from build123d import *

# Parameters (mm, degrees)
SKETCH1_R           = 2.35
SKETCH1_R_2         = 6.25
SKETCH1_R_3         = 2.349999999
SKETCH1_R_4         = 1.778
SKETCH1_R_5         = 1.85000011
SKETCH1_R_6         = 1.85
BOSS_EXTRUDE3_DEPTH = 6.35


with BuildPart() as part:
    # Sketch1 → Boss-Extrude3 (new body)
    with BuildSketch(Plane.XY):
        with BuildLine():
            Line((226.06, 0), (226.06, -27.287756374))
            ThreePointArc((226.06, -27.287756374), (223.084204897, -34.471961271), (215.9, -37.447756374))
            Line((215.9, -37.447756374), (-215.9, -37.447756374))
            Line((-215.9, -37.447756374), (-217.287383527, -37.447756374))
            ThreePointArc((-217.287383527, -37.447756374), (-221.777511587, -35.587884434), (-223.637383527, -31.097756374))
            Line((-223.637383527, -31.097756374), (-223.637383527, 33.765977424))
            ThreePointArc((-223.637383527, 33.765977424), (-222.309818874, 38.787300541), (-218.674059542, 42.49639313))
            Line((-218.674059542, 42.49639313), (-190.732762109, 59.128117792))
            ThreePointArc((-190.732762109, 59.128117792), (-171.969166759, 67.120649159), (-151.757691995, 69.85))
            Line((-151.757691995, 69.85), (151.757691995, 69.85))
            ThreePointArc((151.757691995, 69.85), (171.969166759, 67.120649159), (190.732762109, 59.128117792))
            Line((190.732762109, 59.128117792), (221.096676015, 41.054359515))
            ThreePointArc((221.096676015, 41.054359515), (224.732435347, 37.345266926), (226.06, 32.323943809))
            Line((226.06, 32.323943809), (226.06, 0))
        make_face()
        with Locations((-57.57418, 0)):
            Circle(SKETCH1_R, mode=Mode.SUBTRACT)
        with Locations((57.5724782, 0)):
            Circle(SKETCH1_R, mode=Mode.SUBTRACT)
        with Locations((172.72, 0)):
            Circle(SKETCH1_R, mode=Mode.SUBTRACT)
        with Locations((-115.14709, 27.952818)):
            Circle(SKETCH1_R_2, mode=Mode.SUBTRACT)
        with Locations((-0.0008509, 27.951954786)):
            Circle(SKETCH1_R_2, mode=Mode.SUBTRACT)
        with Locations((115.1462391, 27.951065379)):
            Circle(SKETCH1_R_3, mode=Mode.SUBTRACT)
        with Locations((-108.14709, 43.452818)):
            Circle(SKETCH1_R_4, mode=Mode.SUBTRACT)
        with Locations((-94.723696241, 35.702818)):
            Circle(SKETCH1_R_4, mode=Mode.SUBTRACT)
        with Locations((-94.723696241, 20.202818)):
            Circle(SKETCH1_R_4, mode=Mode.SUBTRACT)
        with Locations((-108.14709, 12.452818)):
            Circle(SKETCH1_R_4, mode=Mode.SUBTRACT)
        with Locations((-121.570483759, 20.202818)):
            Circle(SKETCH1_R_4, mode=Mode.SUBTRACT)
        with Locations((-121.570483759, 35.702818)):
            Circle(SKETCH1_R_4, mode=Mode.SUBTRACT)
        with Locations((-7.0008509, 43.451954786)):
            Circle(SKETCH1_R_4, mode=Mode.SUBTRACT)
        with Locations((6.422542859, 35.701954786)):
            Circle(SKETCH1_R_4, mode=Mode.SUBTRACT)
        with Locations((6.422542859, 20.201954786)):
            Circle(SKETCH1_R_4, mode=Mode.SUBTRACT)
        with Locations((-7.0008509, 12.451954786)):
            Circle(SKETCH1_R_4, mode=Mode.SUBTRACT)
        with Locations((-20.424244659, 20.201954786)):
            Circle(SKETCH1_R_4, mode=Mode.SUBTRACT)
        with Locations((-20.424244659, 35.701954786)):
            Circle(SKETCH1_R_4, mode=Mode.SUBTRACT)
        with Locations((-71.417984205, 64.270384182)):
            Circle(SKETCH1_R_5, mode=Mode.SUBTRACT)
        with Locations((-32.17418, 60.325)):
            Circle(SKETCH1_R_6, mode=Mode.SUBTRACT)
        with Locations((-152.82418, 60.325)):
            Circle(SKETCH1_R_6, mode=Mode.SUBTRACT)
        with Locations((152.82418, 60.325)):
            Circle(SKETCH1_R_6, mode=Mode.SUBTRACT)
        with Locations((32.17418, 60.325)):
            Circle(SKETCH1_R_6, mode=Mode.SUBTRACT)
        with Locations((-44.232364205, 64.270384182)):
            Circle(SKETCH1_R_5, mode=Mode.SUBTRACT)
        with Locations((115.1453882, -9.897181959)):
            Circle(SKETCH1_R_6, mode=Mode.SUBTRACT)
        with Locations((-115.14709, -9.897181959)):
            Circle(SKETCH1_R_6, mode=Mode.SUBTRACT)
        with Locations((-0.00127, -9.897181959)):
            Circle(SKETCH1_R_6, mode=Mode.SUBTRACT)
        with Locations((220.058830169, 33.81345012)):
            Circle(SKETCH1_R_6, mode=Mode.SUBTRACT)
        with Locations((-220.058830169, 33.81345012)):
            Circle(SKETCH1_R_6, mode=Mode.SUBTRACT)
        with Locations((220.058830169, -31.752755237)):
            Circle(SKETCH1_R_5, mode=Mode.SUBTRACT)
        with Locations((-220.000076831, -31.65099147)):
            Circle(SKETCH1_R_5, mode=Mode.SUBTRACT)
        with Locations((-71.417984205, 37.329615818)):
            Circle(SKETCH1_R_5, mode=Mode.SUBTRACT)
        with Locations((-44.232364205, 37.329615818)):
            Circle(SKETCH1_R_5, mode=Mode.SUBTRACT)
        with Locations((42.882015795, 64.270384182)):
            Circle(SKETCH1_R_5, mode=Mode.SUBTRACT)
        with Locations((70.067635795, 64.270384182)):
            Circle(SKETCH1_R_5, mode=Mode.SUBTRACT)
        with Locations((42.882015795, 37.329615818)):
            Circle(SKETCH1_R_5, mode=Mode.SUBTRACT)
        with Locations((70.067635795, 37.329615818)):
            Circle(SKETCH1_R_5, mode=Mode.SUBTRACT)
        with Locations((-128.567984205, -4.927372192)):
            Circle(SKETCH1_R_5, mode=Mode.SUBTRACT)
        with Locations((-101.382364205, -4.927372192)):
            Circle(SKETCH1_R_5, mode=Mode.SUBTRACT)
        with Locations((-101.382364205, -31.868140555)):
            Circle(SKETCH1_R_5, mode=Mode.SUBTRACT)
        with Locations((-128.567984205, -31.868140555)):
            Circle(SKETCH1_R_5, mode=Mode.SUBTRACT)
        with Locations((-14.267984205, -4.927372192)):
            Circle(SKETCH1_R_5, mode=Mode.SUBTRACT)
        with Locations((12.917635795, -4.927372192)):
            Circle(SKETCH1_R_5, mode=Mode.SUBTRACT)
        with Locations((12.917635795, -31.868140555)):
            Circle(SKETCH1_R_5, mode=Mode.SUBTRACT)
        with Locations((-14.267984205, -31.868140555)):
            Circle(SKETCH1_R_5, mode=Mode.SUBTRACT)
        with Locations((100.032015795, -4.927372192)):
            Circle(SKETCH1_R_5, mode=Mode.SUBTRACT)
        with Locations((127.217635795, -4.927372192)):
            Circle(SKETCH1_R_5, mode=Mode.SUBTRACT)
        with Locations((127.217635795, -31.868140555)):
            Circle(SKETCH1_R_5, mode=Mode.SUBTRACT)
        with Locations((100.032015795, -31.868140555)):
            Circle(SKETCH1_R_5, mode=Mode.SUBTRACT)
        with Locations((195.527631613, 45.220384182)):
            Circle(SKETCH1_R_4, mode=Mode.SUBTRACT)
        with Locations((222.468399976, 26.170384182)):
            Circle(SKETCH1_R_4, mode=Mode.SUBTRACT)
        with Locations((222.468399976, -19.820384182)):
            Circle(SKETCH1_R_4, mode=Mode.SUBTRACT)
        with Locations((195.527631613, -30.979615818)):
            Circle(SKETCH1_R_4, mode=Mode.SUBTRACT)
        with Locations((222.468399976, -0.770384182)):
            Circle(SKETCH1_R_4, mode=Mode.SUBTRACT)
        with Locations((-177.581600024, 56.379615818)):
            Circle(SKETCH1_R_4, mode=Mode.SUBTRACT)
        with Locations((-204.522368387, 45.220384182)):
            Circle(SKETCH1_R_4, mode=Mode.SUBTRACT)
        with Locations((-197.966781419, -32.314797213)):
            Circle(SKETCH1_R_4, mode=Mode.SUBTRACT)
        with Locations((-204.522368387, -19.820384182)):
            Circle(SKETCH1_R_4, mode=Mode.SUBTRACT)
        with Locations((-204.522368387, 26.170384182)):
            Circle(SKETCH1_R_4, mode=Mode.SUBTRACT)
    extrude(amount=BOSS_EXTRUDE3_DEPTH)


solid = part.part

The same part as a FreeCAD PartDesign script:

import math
import FreeCAD as App
import Part
import Sketcher
from FreeCAD import Vector
Q = App.Units.Quantity

doc = App.newDocument("Part")
body = doc.addObject("PartDesign::Body", "Body")

sketch1 = body.newObject("Sketcher::SketchObject", "Sketch")
sketch1.AttachmentSupport = (doc.getObject("XY_Plane"), [""])
sketch1.MapMode = "FlatFace"
sketch1.addGeometry([
    Part.ArcOfCircle(Part.Circle(Vector(215.9, -27.287756, 0), Vector(0, 0, 1), 10.16), math.radians(-90), math.radians(0)),
    Part.LineSegment(Vector(226.06, -27.287756, 0), Vector(226.06, 32.323944, 0)),
    Part.ArcOfCircle(Part.Circle(Vector(215.9, 32.323944, 0), Vector(0, 0, 1), 10.16), math.radians(0), math.radians(59.23728)),
    Part.LineSegment(Vector(221.096676, 41.05436, 0), Vector(190.732762, 59.128118, 0)),
    Part.ArcOfCircle(Part.Circle(Vector(151.757692, -6.35, 0), Vector(0, 0, 1), 76.2), math.radians(59.23728), math.radians(90)),
    Part.LineSegment(Vector(151.757692, 69.85, 0), Vector(-151.757692, 69.85, 0)),
    Part.ArcOfCircle(Part.Circle(Vector(-151.757692, -6.35, 0), Vector(0, 0, 1), 76.2), math.radians(90), math.radians(120.76272)),
    Part.LineSegment(Vector(-190.732762, 59.128118, 0), Vector(-218.67406, 42.496393, 0)),
    Part.ArcOfCircle(Part.Circle(Vector(-213.477384, 33.765977, 0), Vector(0, 0, 1), 10.16), math.radians(120.76272), math.radians(180)),
    Part.LineSegment(Vector(-223.637384, 33.765977, 0), Vector(-223.637384, -31.097756, 0)),
    Part.ArcOfCircle(Part.Circle(Vector(-217.287384, -31.097756, 0), Vector(0, 0, 1), 6.35), math.radians(-180), math.radians(-90)),
    Part.LineSegment(Vector(-217.287384, -37.447756, 0), Vector(215.9, -37.447756, 0)),
    Part.Circle(Vector(220.05883, -31.752755, 0), Vector(0, 0, 1), 1.85),
    Part.Circle(Vector(195.527632, -30.979616, 0), Vector(0, 0, 1), 1.778),
    Part.Circle(Vector(127.217636, -31.868141, 0), Vector(0, 0, 1), 1.85),
    Part.Circle(Vector(222.4684, -19.820384, 0), Vector(0, 0, 1), 1.778),
    Part.Circle(Vector(115.145388, -9.897182, 0), Vector(0, 0, 1), 1.85),
    Part.Circle(Vector(100.032016, -31.868141, 0), Vector(0, 0, 1), 1.85),
    Part.Circle(Vector(12.917636, -31.868141, 0), Vector(0, 0, 1), 1.85),
    Part.Circle(Vector(222.4684, -0.770384, 0), Vector(0, 0, 1), 1.778),
    Part.Circle(Vector(172.72, 0, 0), Vector(0, 0, 1), 2.35),
    Part.Circle(Vector(127.217636, -4.927372, 0), Vector(0, 0, 1), 1.85),
    Part.Circle(Vector(100.032016, -4.927372, 0), Vector(0, 0, 1), 1.85),
    Part.Circle(Vector(57.572478, 0, 0), Vector(0, 0, 1), 2.35),
    Part.Circle(Vector(12.917636, -4.927372, 0), Vector(0, 0, 1), 1.85),
    Part.Circle(Vector(-14.267984, -31.868141, 0), Vector(0, 0, 1), 1.85),
    Part.Circle(Vector(-101.382364, -31.868141, 0), Vector(0, 0, 1), 1.85),
    Part.Circle(Vector(-0.00127, -9.897182, 0), Vector(0, 0, 1), 1.85),
    Part.Circle(Vector(-128.567984, -31.868141, 0), Vector(0, 0, 1), 1.85),
    Part.Circle(Vector(-197.966781, -32.314797, 0), Vector(0, 0, 1), 1.778),
    Part.Circle(Vector(-220.000077, -31.650991, 0), Vector(0, 0, 1), 1.85),
    Part.Circle(Vector(-115.14709, -9.897182, 0), Vector(0, 0, 1), 1.85),
    Part.Circle(Vector(-204.522368, -19.820384, 0), Vector(0, 0, 1), 1.778),
    Part.Circle(Vector(-14.267984, -4.927372, 0), Vector(0, 0, 1), 1.85),
    Part.Circle(Vector(-101.382364, -4.927372, 0), Vector(0, 0, 1), 1.85),
    Part.Circle(Vector(-57.57418, 0, 0), Vector(0, 0, 1), 2.35),
    Part.Circle(Vector(-7.000851, 12.451955, 0), Vector(0, 0, 1), 1.778),
    Part.Circle(Vector(-108.14709, 12.452818, 0), Vector(0, 0, 1), 1.778),
    Part.Circle(Vector(-128.567984, -4.927372, 0), Vector(0, 0, 1), 1.85),
    Part.Circle(Vector(222.4684, 26.170384, 0), Vector(0, 0, 1), 1.778),
    Part.Circle(Vector(115.146239, 27.951065, 0), Vector(0, 0, 1), 2.35),
    Part.Circle(Vector(220.05883, 33.81345, 0), Vector(0, 0, 1), 1.85),
    Part.Circle(Vector(6.422543, 20.201955, 0), Vector(0, 0, 1), 1.778),
    Part.Circle(Vector(70.067636, 37.329616, 0), Vector(0, 0, 1), 1.85),
    Part.Circle(Vector(42.882016, 37.329616, 0), Vector(0, 0, 1), 1.85),
    Part.Circle(Vector(6.422543, 35.701955, 0), Vector(0, 0, 1), 1.778),
    Part.Circle(Vector(195.527632, 45.220384, 0), Vector(0, 0, 1), 1.778),
    Part.Circle(Vector(152.82418, 60.325, 0), Vector(0, 0, 1), 1.85),
    Part.Circle(Vector(70.067636, 64.270384, 0), Vector(0, 0, 1), 1.85),
    Part.Circle(Vector(32.17418, 60.325, 0), Vector(0, 0, 1), 1.85),
    Part.Circle(Vector(42.882016, 64.270384, 0), Vector(0, 0, 1), 1.85),
    Part.Circle(Vector(-20.424245, 20.201955, 0), Vector(0, 0, 1), 1.778),
    Part.Circle(Vector(-0.000851, 27.951955, 0), Vector(0, 0, 1), 6.25),
    Part.Circle(Vector(-94.723696, 20.202818, 0), Vector(0, 0, 1), 1.778),
    Part.Circle(Vector(-20.424245, 35.701955, 0), Vector(0, 0, 1), 1.778),
    Part.Circle(Vector(-44.232364, 37.329616, 0), Vector(0, 0, 1), 1.85),
    Part.Circle(Vector(-71.417984, 37.329616, 0), Vector(0, 0, 1), 1.85),
    Part.Circle(Vector(-94.723696, 35.702818, 0), Vector(0, 0, 1), 1.778),
    Part.Circle(Vector(-121.570484, 20.202818, 0), Vector(0, 0, 1), 1.778),
    Part.Circle(Vector(-115.14709, 27.952818, 0), Vector(0, 0, 1), 6.25),
    Part.Circle(Vector(-204.522368, 26.170384, 0), Vector(0, 0, 1), 1.778),
    Part.Circle(Vector(-121.570484, 35.702818, 0), Vector(0, 0, 1), 1.778),
    Part.Circle(Vector(-220.05883, 33.81345, 0), Vector(0, 0, 1), 1.85),
    Part.Circle(Vector(-7.000851, 43.451955, 0), Vector(0, 0, 1), 1.778),
    Part.Circle(Vector(-108.14709, 43.452818, 0), Vector(0, 0, 1), 1.778),
    Part.Circle(Vector(-32.17418, 60.325, 0), Vector(0, 0, 1), 1.85),
    Part.Circle(Vector(-44.232364, 64.270384, 0), Vector(0, 0, 1), 1.85),
    Part.Circle(Vector(-71.417984, 64.270384, 0), Vector(0, 0, 1), 1.85),
    Part.Circle(Vector(-204.522368, 45.220384, 0), Vector(0, 0, 1), 1.778),
    Part.Circle(Vector(-152.82418, 60.325, 0), Vector(0, 0, 1), 1.85),
    Part.Circle(Vector(-177.5816, 56.379616, 0), Vector(0, 0, 1), 1.778),
], False)
sketch1.addConstraint([
    Sketcher.Constraint("Tangent", 0, 2, 1, 1),
    Sketcher.Constraint("Tangent", 1, 2, 2, 1),
    Sketcher.Constraint("Tangent", 2, 2, 3, 1),
    Sketcher.Constraint("Tangent", 3, 2, 4, 1),
    Sketcher.Constraint("Tangent", 4, 2, 5, 1),
    Sketcher.Constraint("Tangent", 5, 2, 6, 1),
    Sketcher.Constraint("Tangent", 6, 2, 7, 1),
    Sketcher.Constraint("Tangent", 7, 2, 8, 1),
    Sketcher.Constraint("Tangent", 8, 2, 9, 1),
    Sketcher.Constraint("Tangent", 9, 2, 10, 1),
    Sketcher.Constraint("Tangent", 10, 2, 11, 1),
    Sketcher.Constraint("Tangent", 11, 2, 0, 1),
    Sketcher.Constraint("Vertical", 1),
    Sketcher.Constraint("Horizontal", 5),
    Sketcher.Constraint("Vertical", 9),
    Sketcher.Constraint("Horizontal", 11),
    Sketcher.Constraint("Equal", 0, 2),
    Sketcher.Constraint("Equal", 4, 6),
    Sketcher.Constraint("Equal", 2, 8),
    Sketcher.Constraint("Equal", 12, 14),
    Sketcher.Constraint("Equal", 13, 15),
    Sketcher.Constraint("Equal", 14, 16),
    Sketcher.Constraint("Equal", 16, 17),
    Sketcher.Constraint("Equal", 17, 18),
    Sketcher.Constraint("Equal", 15, 19),
    Sketcher.Constraint("Equal", 18, 21),
    Sketcher.Constraint("Equal", 21, 22),
    Sketcher.Constraint("Equal", 20, 23),
    Sketcher.Constraint("Equal", 22, 24),
    Sketcher.Constraint("Equal", 24, 25),
    Sketcher.Constraint("Equal", 25, 26),
    Sketcher.Constraint("Equal", 26, 27),
    Sketcher.Constraint("Equal", 27, 28),
    Sketcher.Constraint("Equal", 19, 29),
    Sketcher.Constraint("Equal", 28, 30),
    Sketcher.Constraint("Equal", 30, 31),
    Sketcher.Constraint("Equal", 29, 32),
    Sketcher.Constraint("Equal", 31, 33),
    Sketcher.Constraint("Equal", 33, 34),
    Sketcher.Constraint("Equal", 23, 35),
    Sketcher.Constraint("Equal", 32, 36),
    Sketcher.Constraint("Equal", 36, 37),
    Sketcher.Constraint("Equal", 34, 38),
    Sketcher.Constraint("Equal", 37, 39),
    Sketcher.Constraint("Equal", 35, 40),
    Sketcher.Constraint("Equal", 38, 41),
    Sketcher.Constraint("Equal", 39, 42),
    Sketcher.Constraint("Equal", 41, 43),
    Sketcher.Constraint("Equal", 43, 44),
    Sketcher.Constraint("Equal", 42, 45),
    Sketcher.Constraint("Equal", 45, 46),
    Sketcher.Constraint("Equal", 44, 47),
    Sketcher.Constraint("Equal", 47, 48),
    Sketcher.Constraint("Equal", 48, 49),
    Sketcher.Constraint("Equal", 49, 50),
    Sketcher.Constraint("Equal", 46, 51),
    Sketcher.Constraint("Equal", 51, 53),
    Sketcher.Constraint("Equal", 53, 54),
    Sketcher.Constraint("Equal", 50, 55),
    Sketcher.Constraint("Equal", 55, 56),
    Sketcher.Constraint("Equal", 54, 57),
    Sketcher.Constraint("Equal", 57, 58),
    Sketcher.Constraint("Equal", 52, 59),
    Sketcher.Constraint("Equal", 58, 60),
    Sketcher.Constraint("Equal", 60, 61),
    Sketcher.Constraint("Equal", 56, 62),
    Sketcher.Constraint("Equal", 61, 63),
    Sketcher.Constraint("Equal", 63, 64),
    Sketcher.Constraint("Equal", 62, 65),
    Sketcher.Constraint("Equal", 65, 66),
    Sketcher.Constraint("Equal", 66, 67),
    Sketcher.Constraint("Equal", 64, 68),
    Sketcher.Constraint("Equal", 67, 69),
    Sketcher.Constraint("Equal", 68, 70),
    Sketcher.Constraint("Symmetric", 41, 3, 62, 3, -2),
    Sketcher.Constraint("Symmetric", 49, 3, 65, 3, -2),
    Sketcher.Constraint("Symmetric", 47, 3, 69, 3, -2),
    Sketcher.Constraint("Symmetric", 3, 2, 6, 2, -2),
    Sketcher.Constraint("PointOnObject", 20, 3, -1),
    Sketcher.Constraint("PointOnObject", 23, 3, -1),
    Sketcher.Constraint("PointOnObject", 35, 3, -1),
    Sketcher.Constraint("Horizontal", 14, 3, 17, 3),
    Sketcher.Constraint("Horizontal", 17, 3, 18, 3),
    Sketcher.Constraint("Horizontal", 21, 3, 22, 3),
    Sketcher.Constraint("Horizontal", 22, 3, 24, 3),
    Sketcher.Constraint("Horizontal", 18, 3, 25, 3),
    Sketcher.Constraint("Horizontal", 25, 3, 26, 3),
    Sketcher.Constraint("Horizontal", 16, 3, 27, 3),
    Sketcher.Constraint("Horizontal", 26, 3, 28, 3),
    Sketcher.Constraint("Horizontal", 27, 3, 31, 3),
    Sketcher.Constraint("Horizontal", 15, 3, 32, 3),
    Sketcher.Constraint("Horizontal", 24, 3, 33, 3),
    Sketcher.Constraint("Horizontal", 33, 3, 34, 3),
    Sketcher.Constraint("Horizontal", 34, 3, 38, 3),
    Sketcher.Constraint("Horizontal", 43, 3, 44, 3),
    Sketcher.Constraint("Horizontal", 47, 3, 49, 3),
    Sketcher.Constraint("Horizontal", 48, 3, 50, 3),
    Sketcher.Constraint("Horizontal", 42, 3, 51, 3),
    Sketcher.Constraint("Horizontal", 45, 3, 54, 3),
    Sketcher.Constraint("Horizontal", 44, 3, 55, 3),
    Sketcher.Constraint("Horizontal", 55, 3, 56, 3),
    Sketcher.Constraint("Horizontal", 53, 3, 58, 3),
    Sketcher.Constraint("Horizontal", 39, 3, 60, 3),
    Sketcher.Constraint("Horizontal", 57, 3, 61, 3),
    Sketcher.Constraint("Horizontal", 50, 3, 66, 3),
    Sketcher.Constraint("Horizontal", 66, 3, 67, 3),
    Sketcher.Constraint("Horizontal", 46, 3, 68, 3),
    Sketcher.Constraint("Vertical", 15, 3, 19, 3),
    Sketcher.Constraint("Vertical", 14, 3, 21, 3),
    Sketcher.Constraint("Vertical", 17, 3, 22, 3),
    Sketcher.Constraint("Vertical", 18, 3, 24, 3),
    Sketcher.Constraint("Vertical", 25, 3, 33, 3),
    Sketcher.Constraint("Vertical", 26, 3, 34, 3),
    Sketcher.Constraint("Vertical", 28, 3, 38, 3),
    Sketcher.Constraint("Vertical", 19, 3, 39, 3),
    Sketcher.Constraint("Vertical", 12, 3, 41, 3),
    Sketcher.Constraint("Vertical", 42, 3, 45, 3),
    Sketcher.Constraint("Vertical", 13, 3, 46, 3),
    Sketcher.Constraint("Vertical", 43, 3, 48, 3),
    Sketcher.Constraint("Vertical", 44, 3, 50, 3),
    Sketcher.Constraint("Vertical", 51, 3, 54, 3),
    Sketcher.Constraint("Vertical", 53, 3, 57, 3),
    Sketcher.Constraint("Vertical", 31, 3, 59, 3),
    Sketcher.Constraint("Vertical", 32, 3, 60, 3),
    Sketcher.Constraint("Vertical", 58, 3, 61, 3),
    Sketcher.Constraint("Vertical", 36, 3, 63, 3),
    Sketcher.Constraint("Vertical", 37, 3, 64, 3),
    Sketcher.Constraint("Vertical", 55, 3, 66, 3),
    Sketcher.Constraint("Vertical", 56, 3, 67, 3),
    Sketcher.Constraint("Vertical", 60, 3, 68, 3),
    Sketcher.Constraint("Radius", 4, Q("3 in")),
    Sketcher.Constraint("Radius", 0, Q("0.4 in")),
    Sketcher.Constraint("Diameter", 13, Q("0.14 in")),
    Sketcher.Constraint("Radius", 10, Q("0.25 in")),
    Sketcher.Constraint("DistanceX", -1, 1, 0, 3, Q("8.5 in")),
    Sketcher.Constraint("DistanceX", -1, 1, 20, 3, Q("6.8 in")),
    Sketcher.Constraint("Diameter", 12, Q("3.7 mm")),
    Sketcher.Constraint("Diameter", 20, Q("4.7 mm")),
    Sketcher.Constraint("Diameter", 52, Q("12.5 mm")),
    Sketcher.Constraint("DistanceY", 4, 3, -1, 1, Q("0.25 in")),
    Sketcher.Constraint("DistanceY", -1, 1, 47, 3, Q("2.375 in")),
    Sketcher.Constraint("DistanceY", 1, 1, 1, 2, Q("59.6117 mm")),
    Sketcher.Constraint("DistanceX", 35, 3, -1, 1, Q("2.2667 in")),
    Sketcher.Constraint("DistanceX", -1, 1, 47, 3, Q("6.0167 in")),
    Sketcher.Constraint("DistanceX", -1, 1, 49, 3, Q("1.2667 in")),
    Sketcher.Constraint("DistanceX", -1, 1, 15, 3, Q("222.4684 mm")),
    Sketcher.Constraint("DistanceX", 70, 3, -1, 1, Q("177.5816 mm")),
    Sketcher.Constraint("Distance", 3, Q("35.335931 mm")),
    Sketcher.Constraint("DistanceX", 5, 2, 5, 1, Q("303.515384 mm")),
    Sketcher.Constraint("DistanceX", 11, 1, 11, 2, Q("433.187384 mm")),
    Sketcher.Constraint("DistanceX", -1, 1, 12, 3, Q("220.05883 mm")),
    Sketcher.Constraint("DistanceX", -1, 1, 13, 3, Q("195.527632 mm")),
    Sketcher.Constraint("DistanceY", 14, 3, -1, 1, Q("31.868141 mm")),
    Sketcher.Constraint("DistanceX", -1, 1, 16, 3, Q("115.145388 mm")),
    Sketcher.Constraint("DistanceY", 16, 3, -1, 1, Q("9.897182 mm")),
    Sketcher.Constraint("DistanceX", -1, 1, 23, 3, Q("57.572478 mm")),
    Sketcher.Constraint("DistanceX", 27, 3, -1, 1, Q("0.00127 mm")),
    Sketcher.Constraint("DistanceX", 29, 3, -1, 1, Q("197.966781 mm")),
    Sketcher.Constraint("DistanceY", 30, 3, -1, 1, Q("31.650991 mm")),
    Sketcher.Constraint("DistanceX", 31, 3, -1, 1, Q("115.14709 mm")),
    Sketcher.Constraint("DistanceX", 32, 3, -1, 1, Q("204.522368 mm")),
    Sketcher.Constraint("DistanceX", 36, 3, -1, 1, Q("7.000851 mm")),
    Sketcher.Constraint("DistanceX", 37, 3, -1, 1, Q("108.14709 mm")),
    Sketcher.Constraint("DistanceY", -1, 1, 37, 3, Q("12.452818 mm")),
    Sketcher.Constraint("DistanceX", -1, 1, 40, 3, Q("115.146239 mm")),
    Sketcher.Constraint("DistanceY", -1, 1, 41, 3, Q("33.81345 mm")),
    Sketcher.Constraint("DistanceX", 52, 3, -1, 1, Q("0.000851 mm")),
    Sketcher.Constraint("DistanceY", -1, 1, 53, 3, Q("20.202818 mm")),
    Sketcher.Constraint("DistanceY", -1, 1, 59, 3, Q("27.952818 mm")),
    Sketcher.Constraint("DistanceY", 12, 3, -1, 1, Q("31.752755 mm")),
    Sketcher.Constraint("DistanceY", 13, 3, -1, 1, Q("30.979616 mm")),
    Sketcher.Constraint("DistanceX", -1, 1, 14, 3, Q("127.217636 mm")),
    Sketcher.Constraint("DistanceY", 15, 3, -1, 1, Q("19.820384 mm")),
    Sketcher.Constraint("DistanceX", -1, 1, 17, 3, Q("100.032016 mm")),
    Sketcher.Constraint("DistanceX", -1, 1, 18, 3, Q("12.917636 mm")),
    Sketcher.Constraint("DistanceY", 19, 3, -1, 1, Q("0.770384 mm")),
    Sketcher.Constraint("DistanceY", 21, 3, -1, 1, Q("4.927372 mm")),
    Sketcher.Constraint("DistanceX", 25, 3, -1, 1, Q("14.267984 mm")),
    Sketcher.Constraint("DistanceX", 26, 3, -1, 1, Q("101.382364 mm")),
    Sketcher.Constraint("DistanceX", 28, 3, -1, 1, Q("128.567984 mm")),
    Sketcher.Constraint("DistanceY", 29, 3, -1, 1, Q("32.314797 mm")),
    Sketcher.Constraint("DistanceX", 30, 3, -1, 1, Q("220.000077 mm")),
    Sketcher.Constraint("DistanceY", -1, 1, 36, 3, Q("12.451955 mm")),
    Sketcher.Constraint("DistanceY", -1, 1, 39, 3, Q("26.170384 mm")),
    Sketcher.Constraint("DistanceY", -1, 1, 40, 3, Q("27.951065 mm")),
    Sketcher.Constraint("DistanceX", -1, 1, 42, 3, Q("6.422543 mm")),
    Sketcher.Constraint("DistanceY", -1, 1, 42, 3, Q("20.201955 mm")),
    Sketcher.Constraint("DistanceX", -1, 1, 43, 3, Q("70.067636 mm")),
    Sketcher.Constraint("DistanceY", -1, 1, 43, 3, Q("37.329616 mm")),
    Sketcher.Constraint("DistanceX", -1, 1, 44, 3, Q("42.882016 mm")),
    Sketcher.Constraint("DistanceY", -1, 1, 45, 3, Q("35.701955 mm")),
    Sketcher.Constraint("DistanceY", -1, 1, 46, 3, Q("45.220384 mm")),
    Sketcher.Constraint("DistanceY", -1, 1, 48, 3, Q("64.270384 mm")),
    Sketcher.Constraint("DistanceX", 51, 3, -1, 1, Q("20.424245 mm")),
    Sketcher.Constraint("DistanceY", -1, 1, 52, 3, Q("27.951955 mm")),
    Sketcher.Constraint("DistanceX", 53, 3, -1, 1, Q("94.723696 mm")),
    Sketcher.Constraint("DistanceX", 55, 3, -1, 1, Q("44.232364 mm")),
    Sketcher.Constraint("DistanceX", 56, 3, -1, 1, Q("71.417984 mm")),
    Sketcher.Constraint("DistanceY", -1, 1, 57, 3, Q("35.702818 mm")),
    Sketcher.Constraint("DistanceX", 58, 3, -1, 1, Q("121.570484 mm")),
    Sketcher.Constraint("DistanceY", -1, 1, 63, 3, Q("43.451955 mm")),
    Sketcher.Constraint("DistanceY", -1, 1, 64, 3, Q("43.452818 mm")),
    Sketcher.Constraint("DistanceY", -1, 1, 70, 3, Q("56.379616 mm")),
])
pad1 = body.newObject("PartDesign::Pad", "Pad")
pad1.Profile = sketch1
pad1.Length = Q("0.25 in")

doc.recompute()
